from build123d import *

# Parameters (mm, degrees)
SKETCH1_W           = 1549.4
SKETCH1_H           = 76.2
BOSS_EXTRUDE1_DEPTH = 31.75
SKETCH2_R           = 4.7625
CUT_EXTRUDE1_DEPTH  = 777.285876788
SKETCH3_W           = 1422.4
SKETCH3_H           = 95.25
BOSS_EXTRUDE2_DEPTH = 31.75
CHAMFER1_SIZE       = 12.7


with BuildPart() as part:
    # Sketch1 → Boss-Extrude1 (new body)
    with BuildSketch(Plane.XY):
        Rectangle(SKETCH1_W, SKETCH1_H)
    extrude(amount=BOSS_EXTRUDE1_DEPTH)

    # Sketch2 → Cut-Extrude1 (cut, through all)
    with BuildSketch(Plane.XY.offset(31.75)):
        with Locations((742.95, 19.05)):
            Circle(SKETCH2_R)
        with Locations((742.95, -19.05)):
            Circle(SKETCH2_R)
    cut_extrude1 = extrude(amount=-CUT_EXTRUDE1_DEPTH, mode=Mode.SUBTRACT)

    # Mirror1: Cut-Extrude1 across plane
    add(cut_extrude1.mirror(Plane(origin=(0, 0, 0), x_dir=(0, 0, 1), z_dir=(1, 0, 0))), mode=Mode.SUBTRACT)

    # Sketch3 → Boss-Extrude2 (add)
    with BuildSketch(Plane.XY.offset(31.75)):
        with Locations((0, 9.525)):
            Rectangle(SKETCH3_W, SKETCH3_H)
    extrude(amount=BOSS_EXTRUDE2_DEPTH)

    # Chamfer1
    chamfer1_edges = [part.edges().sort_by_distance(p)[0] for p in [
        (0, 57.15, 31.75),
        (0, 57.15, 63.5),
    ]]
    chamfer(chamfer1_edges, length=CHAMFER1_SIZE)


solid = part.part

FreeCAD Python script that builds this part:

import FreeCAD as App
import Part
import Sketcher

V = App.Vector
Q = App.Units.Quantity


def edges_at(feature, points):
    """Names of the edges that pass closest to the given points."""
    edges = feature.Shape.Edges
    near = lambda p: min(range(len(edges)), key=lambda i: edges[i].distToShape(Part.Vertex(*p))[0])
    return sorted({f"Edge{near(p) + 1}" for p in points})

doc = App.newDocument("Part")
params = doc.addObject("Spreadsheet::Sheet", "Params")
for row, (alias, value) in enumerate([
    ("sketch1_width", "61 in"),
    ("sketch1_height", "3 in"),
    ("pad1_length", "1.25 in"),
    ("sketch2_diameter", "0.375 in"),
    ("sketch3_width", "56 in"),
    ("sketch3_height", "3.75 in"),
    ("pad2_length", "1.25 in"),
    ("chamfer_size", "0.5 in"),
], start=1):
    params.set(f"A{row}", alias)
    params.set(f"B{row}", "=" + value)
    params.setAlias(f"B{row}", alias)

body = doc.addObject("PartDesign::Body", "Body")

sketch1 = body.newObject("Sketcher::SketchObject", "Sketch")
sketch1.AttachmentSupport = (doc.getObject("XY_Plane"), [""])
sketch1.MapMode = "FlatFace"
sketch1.addGeometry([
    Part.LineSegment(V(-774.7, 38.1, 0), V(-774.7, -38.1, 0)),
    Part.LineSegment(V(-774.7, -38.1, 0), V(774.7, -38.1, 0)),
    Part.LineSegment(V(774.7, -38.1, 0), V(774.7, 38.1, 0)),
    Part.LineSegment(V(774.7, 38.1, 0), V(-774.7, 38.1, 0)),
], False)
sketch1.addConstraint([
    Sketcher.Constraint("Coincident", 0, 2, 1, 1),
    Sketcher.Constraint("Coincident", 1, 2, 2, 1),
    Sketcher.Constraint("Coincident", 2, 2, 3, 1),
    Sketcher.Constraint("Coincident", 3, 2, 0, 1),
    Sketcher.Constraint("Vertical", 0),
    Sketcher.Constraint("Horizontal", 1),
    Sketcher.Constraint("Vertical", 2),
    Sketcher.Constraint("Horizontal", 3),
    Sketcher.Constraint("Symmetric", 0, 2, 2, 2, -1, 1),
    Sketcher.Constraint("DistanceX", 1, 1, 1, 2, Q("61 in")),
    Sketcher.Constraint("DistanceY", 0, 2, 0, 1, Q("3 in")),
])
sketch1.setExpression("Constraints[9]", "Params.sketch1_width")
sketch1.setExpression("Constraints[10]", "Params.sketch1_height")
pad1 = body.newObject("PartDesign::Pad", "Pad")
pad1.Profile = sketch1
pad1.setExpression("Length", "Params.pad1_length")

sketch2 = body.newObject("Sketcher::SketchObject", "Sketch001")
sketch2.AttachmentSupport = (doc.getObject("XY_Plane"), [""])
sketch2.MapMode = "FlatFace"
sketch2.AttachmentOffset = App.Placement(V(0, 0, 1.25 * 25.4), App.Rotation())
sketch2.addGeometry([
    Part.Circle(V(742.95, 19.05, 0), V(0, 0, 1), 4.7625),
    Part.Circle(V(742.95, -19.05, 0), V(0, 0, 1), 4.7625),
], False)
sketch2.addConstraint([
    Sketcher.Constraint("Equal", 0, 1),
    Sketcher.Constraint("Symmetric", 0, 3, 1, 3, -1),
    Sketcher.Constraint("Diameter", 0, Q("0.375 in")),
    Sketcher.Constraint("DistanceY", 1, 3, 0, 3, Q("1.5 in")),
    Sketcher.Constraint("DistanceX", -1, 1, 0, 3, Q("29.25 in")),
])
sketch2.setExpression("Constraints[2]", "Params.sketch2_diameter")
pocket1 = body.newObject("PartDesign::Pocket", "Pocket")
pocket1.Profile = sketch2
pocket1.Type = "ThroughAll"
doc.recompute()

mirrored = body.newObject("PartDesign::Mirrored", "Mirrored")
mirrored.Originals = [pocket1]
mirrored.MirrorPlane = (doc.getObject("YZ_Plane"), [""])
body.Tip = mirrored

sketch3 = body.newObject("Sketcher::SketchObject", "Sketch002")
sketch3.AttachmentSupport = (doc.getObject("XY_Plane"), [""])
sketch3.MapMode = "FlatFace"
sketch3.AttachmentOffset = App.Placement(V(0, 0, 1.25 * 25.4), App.Rotation())
sketch3.addGeometry([
    Part.LineSegment(V(-711.2, 57.15, 0), V(-711.2, -38.1, 0)),
    Part.LineSegment(V(-711.2, -38.1, 0), V(711.2, -38.1, 0)),
    Part.LineSegment(V(711.2, -38.1, 0), V(711.2, 57.15, 0)),
    Part.LineSegment(V(711.2, 57.15, 0), V(-711.2, 57.15, 0)),
], False)
sketch3.addConstraint([
    Sketcher.Constraint("Coincident", 0, 2, 1, 1),
    Sketcher.Constraint("Coincident", 1, 2, 2, 1),
    Sketcher.Constraint("Coincident", 2, 2, 3, 1),
    Sketcher.Constraint("Coincident", 3, 2, 0, 1),
    Sketcher.Constraint("Vertical", 0),
    Sketcher.Constraint("Horizontal", 1),
    Sketcher.Constraint("Vertical", 2),
    Sketcher.Constraint("Horizontal", 3),
    Sketcher.Constraint("DistanceX", 1, 1, 1, 2, Q("56 in")),
    Sketcher.Constraint("DistanceX", 0, 2, -1, 1, Q("28 in")),
    Sketcher.Constraint("DistanceY", 0, 2, 0, 1, Q("3.75 in")),
    Sketcher.Constraint("DistanceY", 0, 2, -1, 1, Q("1.5 in")),
])
sketch3.setExpression("Constraints[8]", "Params.sketch3_width")
sketch3.setExpression("Constraints[10]", "Params.sketch3_height")
pad2 = body.newObject("PartDesign::Pad", "Pad001")
pad2.Profile = sketch3
pad2.setExpression("Length", "Params.pad2_length")
doc.recompute()

chamfer = body.newObject("PartDesign::Chamfer", "Chamfer")
chamfer.Base = (pad2, edges_at(pad2, [(0, 57.15, 31.75), (0, 57.15, 63.5)]))
chamfer.setExpression("Size", "Params.chamfer_size")

doc.recompute()
